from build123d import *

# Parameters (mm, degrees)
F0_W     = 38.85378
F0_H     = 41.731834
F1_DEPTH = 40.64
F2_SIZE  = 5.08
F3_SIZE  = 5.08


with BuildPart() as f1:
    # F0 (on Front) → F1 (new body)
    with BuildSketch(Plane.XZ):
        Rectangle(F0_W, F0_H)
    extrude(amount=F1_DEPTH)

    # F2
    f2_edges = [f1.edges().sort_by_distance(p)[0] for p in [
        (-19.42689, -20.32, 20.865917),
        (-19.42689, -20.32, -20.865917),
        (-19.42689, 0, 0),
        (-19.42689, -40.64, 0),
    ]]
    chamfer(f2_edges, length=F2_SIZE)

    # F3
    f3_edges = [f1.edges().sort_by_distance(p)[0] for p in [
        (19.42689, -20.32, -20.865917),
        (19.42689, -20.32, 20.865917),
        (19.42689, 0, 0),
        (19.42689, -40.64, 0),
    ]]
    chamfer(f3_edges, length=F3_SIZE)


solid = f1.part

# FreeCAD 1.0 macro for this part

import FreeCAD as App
import Part
import Sketcher
from FreeCAD import Vector
Q = App.Units.Quantity


def edges_at(feature, points):
    """Names of the edges that pass closest to the given points."""
    edges = feature.Shape.Edges
    near = lambda p: min(range(len(edges)), key=lambda i: edges[i].distToShape(Part.Vertex(*p))[0])
    return sorted({f"Edge{near(p) + 1}" for p in points})

doc = App.newDocument("Part")
params = doc.addObject("Spreadsheet::Sheet", "Params")
for row, (alias, value) in enumerate([
    ("pad1_length", "1.6 in"),
    ("chamfer_size", "0.2 in"),
    ("chamfer2_size", "0.2 in"),
], start=1):
    params.set(f"A{row}", alias)
    params.set(f"B{row}", "=" + value)
    params.setAlias(f"B{row}", alias)

body = doc.addObject("PartDesign::Body", "Body")

# Sketch on XZ plane
sketch1 = body.newObject("Sketcher::SketchObject", "Sketch")
sketch1.AttachmentSupport = (doc.getObject("XZ_Plane"), [""])
sketch1.MapMode = "FlatFace"
sketch1.addGeometry(Part.LineSegment(Vector(-19.42689, 20.865917, 0), Vector(-19.42689, -20.865917, 0)), False)
sketch1.addGeometry(Part.LineSegment(Vector(-19.42689, -20.865917, 0), Vector(19.42689, -20.865917, 0)), False)
sketch1.addGeometry(Part.LineSegment(Vector(19.42689, -20.865917, 0), Vector(19.42689, 20.865917, 0)), False)
sketch1.addGeometry(Part.LineSegment(Vector(19.42689, 20.865917, 0), Vector(-19.42689, 20.865917, 0)), False)
sketch1.addConstraint(Sketcher.Constraint("Coincident", 0, 2, 1, 1))
sketch1.addConstraint(Sketcher.Constraint("Coincident", 1, 2, 2, 1))
sketch1.addConstraint(Sketcher.Constraint("Coincident", 2, 2, 3, 1))
sketch1.addConstraint(Sketcher.Constraint("Coincident", 3, 2, 0, 1))
sketch1.addConstraint(Sketcher.Constraint("Vertical", 0))
sketch1.addConstraint(Sketcher.Constraint("Horizontal", 1))
sketch1.addConstraint(Sketcher.Constraint("Vertical", 2))
sketch1.addConstraint(Sketcher.Constraint("Horizontal", 3))
sketch1.addConstraint(Sketcher.Constraint("Symmetric", 0, 2, 2, 2, -1, 1))
sketch1.addConstraint(Sketcher.Constraint("DistanceX", 1, 1, 1, 2, Q("38.85378 mm")))
sketch1.addConstraint(Sketcher.Constraint("DistanceY", 0, 2, 0, 1, Q("41.731834 mm")))
pad1 = body.newObject("PartDesign::Pad", "Pad")
pad1.Profile = sketch1
pad1.setExpression("Length", "Params.pad1_length")
doc.recompute()

chamfer = body.newObject("PartDesign::Chamfer", "Chamfer")
chamfer.Base = (pad1, edges_at(pad1, [
    (-19.427, -20.32, 20.866),
    (-19.427, -20.32, -20.866),
    (-19.427, 0, 0),
    (-19.427, -40.64, 0),
]))
chamfer.setExpression("Size", "Params.chamfer_size")
doc.recompute()

chamfer2 = body.newObject("PartDesign::Chamfer", "Chamfer001")
chamfer2.Base = (chamfer, edges_at(chamfer, [
    (19.427, -20.32, -20.866),
    (19.427, -20.32, 20.866),
    (19.427, 0, 0),
    (19.427, -40.64, 0),
]))
chamfer2.setExpression("Size", "Params.chamfer2_size")

doc.recompute()
